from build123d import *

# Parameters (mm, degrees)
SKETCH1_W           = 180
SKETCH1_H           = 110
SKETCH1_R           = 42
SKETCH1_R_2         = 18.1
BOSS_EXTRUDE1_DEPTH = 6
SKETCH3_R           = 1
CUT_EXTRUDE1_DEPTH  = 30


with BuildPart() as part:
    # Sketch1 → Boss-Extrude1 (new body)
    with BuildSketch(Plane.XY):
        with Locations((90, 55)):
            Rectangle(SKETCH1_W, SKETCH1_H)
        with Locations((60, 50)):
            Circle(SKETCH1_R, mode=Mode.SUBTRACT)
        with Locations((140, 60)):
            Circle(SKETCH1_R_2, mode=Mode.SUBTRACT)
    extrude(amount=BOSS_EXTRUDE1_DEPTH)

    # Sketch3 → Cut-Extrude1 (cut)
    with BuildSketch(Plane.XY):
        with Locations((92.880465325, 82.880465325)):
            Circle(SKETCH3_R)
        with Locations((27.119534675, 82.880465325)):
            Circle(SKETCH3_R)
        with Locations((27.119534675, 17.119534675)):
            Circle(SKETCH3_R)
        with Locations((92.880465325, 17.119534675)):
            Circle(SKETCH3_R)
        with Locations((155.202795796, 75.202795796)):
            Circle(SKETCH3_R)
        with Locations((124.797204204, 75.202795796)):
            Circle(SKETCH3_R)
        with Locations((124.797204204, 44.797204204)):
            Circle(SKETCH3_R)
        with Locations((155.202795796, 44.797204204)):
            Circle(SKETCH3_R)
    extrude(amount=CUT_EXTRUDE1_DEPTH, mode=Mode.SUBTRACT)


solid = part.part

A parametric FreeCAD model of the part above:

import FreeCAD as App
import Part
import Sketcher
from FreeCAD import Vector


def add_polygon(sketch, points):
    """Adds a closed chain of lines whose ends are joined by coincident constraints."""
    first, n = sketch.GeometryCount, len(points)
    for a, b in zip(points, points[1:] + points[:1]):
        sketch.addGeometry(Part.LineSegment(App.Vector(*a, 0), App.Vector(*b, 0)), False)
    for i in range(n):
        sketch.addConstraint(Sketcher.Constraint("Coincident", first + i, 2, first + (i + 1) % n, 1))

doc = App.newDocument("Part")
body = doc.addObject("PartDesign::Body", "Body")

sketch1 = body.newObject("Sketcher::SketchObject", "Sketch")
sketch1.AttachmentSupport = (doc.getObject("XY_Plane"), [""])
sketch1.MapMode = "FlatFace"
add_polygon(sketch1, [(0, 110), (0, 0), (180, 0), (180, 110)])
sketch1.addGeometry(Part.Circle(Vector(60, 50, 0), Vector(0, 0, 1), 42), False)
sketch1.addGeometry(Part.Circle(Vector(140, 60, 0), Vector(0, 0, 1), 18), False)
sketch1.addConstraint([
    Sketcher.Constraint("Vertical", 0),
    Sketcher.Constraint("Horizontal", 1),
    Sketcher.Constraint("Vertical", 2),
    Sketcher.Constraint("Horizontal", 3),
    Sketcher.Constraint("Coincident", 0, 2, -1, 1),
    Sketcher.Constraint("Diameter", 4, 84.0),
    Sketcher.Constraint("Diameter", 5, 36.2),
    Sketcher.Constraint("DistanceX", 1, 1, 1, 2, 180.0),
    Sketcher.Constraint("DistanceY", 0, 2, 0, 1, 110.0),
    Sketcher.Constraint("DistanceX", -1, 1, 4, 3, 60.0),
    Sketcher.Constraint("DistanceY", -1, 1, 4, 3, 50.0),
    Sketcher.Constraint("DistanceX", -1, 1, 5, 3, 140.0),
    Sketcher.Constraint("DistanceY", -1, 1, 5, 3, 60.0),
])
pad1 = body.newObject("PartDesign::Pad", "Pad")
pad1.Profile = sketch1
pad1.Length = 6

sketch2 = body.newObject("Sketcher::SketchObject", "Sketch001")
sketch2.AttachmentSupport = (doc.getObject("XY_Plane"), [""])
sketch2.MapMode = "FlatFace"
sketch2.addGeometry([
    Part.Circle(Vector(92.9, 82.9, 0), Vector(0, 0, 1), 1),
    Part.Circle(Vector(27.1, 82.9, 0), Vector(0, 0, 1), 1),
    Part.Circle(Vector(27.1, 17.1, 0), Vector(0, 0, 1), 1),
    Part.Circle(Vector(92.9, 17.1, 0), Vector(0, 0, 1), 1),
    Part.Circle(Vector(155.2, 75.2, 0), Vector(0, 0, 1), 1),
    Part.Circle(Vector(124.8, 75.2, 0), Vector(0, 0, 1), 1),
    Part.Circle(Vector(124.8, 44.8, 0), Vector(0, 0, 1), 1),
    Part.Circle(Vector(155.2, 44.8, 0), Vector(0, 0, 1), 1),
], False)
sketch2.addConstraint([
    Sketcher.Constraint("Equal", 0, 1),
    Sketcher.Constraint("Equal", 1, 2),
    Sketcher.Constraint("Equal", 2, 3),
    Sketcher.Constraint("Equal", 3, 4),
    Sketcher.Constraint("Equal", 4, 5),
    Sketcher.Constraint("Equal", 5, 6),
    Sketcher.Constraint("Equal", 6, 7),
    Sketcher.Constraint("Horizontal", 0, 3, 1, 3),
    Sketcher.Constraint("Horizontal", 2, 3, 3, 3),
    Sketcher.Constraint("Horizontal", 4, 3, 5, 3),
    Sketcher.Constraint("Horizontal", 6, 3, 7, 3),
    Sketcher.Constraint("Vertical", 1, 3, 2, 3),
    Sketcher.Constraint("Vertical", 0, 3, 3, 3),
    Sketcher.Constraint("Vertical", 5, 3, 6, 3),
    Sketcher.Constraint("Vertical", 4, 3, 7, 3),
    Sketcher.Constraint("Diameter", 0, 2.0),
    Sketcher.Constraint("DistanceX", 1, 3, 0, 3, 65.760931),
    Sketcher.Constraint("DistanceY", 2, 3, 1, 3, 65.760931),
    Sketcher.Constraint("DistanceX", 0, 3, 4, 3, 62.32233),
    Sketcher.Constraint("DistanceY", 4, 3, 0, 3, 7.67767),
    Sketcher.Constraint("DistanceX", 5, 3, 4, 3, 30.405592),
    Sketcher.Constraint("DistanceY", 6, 3, 5, 3, 30.405592),
    Sketcher.Constraint("DistanceX", -1, 1, 0, 3, 92.880465),
    Sketcher.Constraint("DistanceY", -1, 1, 0, 3, 82.880465),
])
pocket1 = body.newObject("PartDesign::Pocket", "Pocket")
pocket1.Profile = sketch2
pocket1.Length = 30
pocket1.Reversed = True

doc.recompute()
